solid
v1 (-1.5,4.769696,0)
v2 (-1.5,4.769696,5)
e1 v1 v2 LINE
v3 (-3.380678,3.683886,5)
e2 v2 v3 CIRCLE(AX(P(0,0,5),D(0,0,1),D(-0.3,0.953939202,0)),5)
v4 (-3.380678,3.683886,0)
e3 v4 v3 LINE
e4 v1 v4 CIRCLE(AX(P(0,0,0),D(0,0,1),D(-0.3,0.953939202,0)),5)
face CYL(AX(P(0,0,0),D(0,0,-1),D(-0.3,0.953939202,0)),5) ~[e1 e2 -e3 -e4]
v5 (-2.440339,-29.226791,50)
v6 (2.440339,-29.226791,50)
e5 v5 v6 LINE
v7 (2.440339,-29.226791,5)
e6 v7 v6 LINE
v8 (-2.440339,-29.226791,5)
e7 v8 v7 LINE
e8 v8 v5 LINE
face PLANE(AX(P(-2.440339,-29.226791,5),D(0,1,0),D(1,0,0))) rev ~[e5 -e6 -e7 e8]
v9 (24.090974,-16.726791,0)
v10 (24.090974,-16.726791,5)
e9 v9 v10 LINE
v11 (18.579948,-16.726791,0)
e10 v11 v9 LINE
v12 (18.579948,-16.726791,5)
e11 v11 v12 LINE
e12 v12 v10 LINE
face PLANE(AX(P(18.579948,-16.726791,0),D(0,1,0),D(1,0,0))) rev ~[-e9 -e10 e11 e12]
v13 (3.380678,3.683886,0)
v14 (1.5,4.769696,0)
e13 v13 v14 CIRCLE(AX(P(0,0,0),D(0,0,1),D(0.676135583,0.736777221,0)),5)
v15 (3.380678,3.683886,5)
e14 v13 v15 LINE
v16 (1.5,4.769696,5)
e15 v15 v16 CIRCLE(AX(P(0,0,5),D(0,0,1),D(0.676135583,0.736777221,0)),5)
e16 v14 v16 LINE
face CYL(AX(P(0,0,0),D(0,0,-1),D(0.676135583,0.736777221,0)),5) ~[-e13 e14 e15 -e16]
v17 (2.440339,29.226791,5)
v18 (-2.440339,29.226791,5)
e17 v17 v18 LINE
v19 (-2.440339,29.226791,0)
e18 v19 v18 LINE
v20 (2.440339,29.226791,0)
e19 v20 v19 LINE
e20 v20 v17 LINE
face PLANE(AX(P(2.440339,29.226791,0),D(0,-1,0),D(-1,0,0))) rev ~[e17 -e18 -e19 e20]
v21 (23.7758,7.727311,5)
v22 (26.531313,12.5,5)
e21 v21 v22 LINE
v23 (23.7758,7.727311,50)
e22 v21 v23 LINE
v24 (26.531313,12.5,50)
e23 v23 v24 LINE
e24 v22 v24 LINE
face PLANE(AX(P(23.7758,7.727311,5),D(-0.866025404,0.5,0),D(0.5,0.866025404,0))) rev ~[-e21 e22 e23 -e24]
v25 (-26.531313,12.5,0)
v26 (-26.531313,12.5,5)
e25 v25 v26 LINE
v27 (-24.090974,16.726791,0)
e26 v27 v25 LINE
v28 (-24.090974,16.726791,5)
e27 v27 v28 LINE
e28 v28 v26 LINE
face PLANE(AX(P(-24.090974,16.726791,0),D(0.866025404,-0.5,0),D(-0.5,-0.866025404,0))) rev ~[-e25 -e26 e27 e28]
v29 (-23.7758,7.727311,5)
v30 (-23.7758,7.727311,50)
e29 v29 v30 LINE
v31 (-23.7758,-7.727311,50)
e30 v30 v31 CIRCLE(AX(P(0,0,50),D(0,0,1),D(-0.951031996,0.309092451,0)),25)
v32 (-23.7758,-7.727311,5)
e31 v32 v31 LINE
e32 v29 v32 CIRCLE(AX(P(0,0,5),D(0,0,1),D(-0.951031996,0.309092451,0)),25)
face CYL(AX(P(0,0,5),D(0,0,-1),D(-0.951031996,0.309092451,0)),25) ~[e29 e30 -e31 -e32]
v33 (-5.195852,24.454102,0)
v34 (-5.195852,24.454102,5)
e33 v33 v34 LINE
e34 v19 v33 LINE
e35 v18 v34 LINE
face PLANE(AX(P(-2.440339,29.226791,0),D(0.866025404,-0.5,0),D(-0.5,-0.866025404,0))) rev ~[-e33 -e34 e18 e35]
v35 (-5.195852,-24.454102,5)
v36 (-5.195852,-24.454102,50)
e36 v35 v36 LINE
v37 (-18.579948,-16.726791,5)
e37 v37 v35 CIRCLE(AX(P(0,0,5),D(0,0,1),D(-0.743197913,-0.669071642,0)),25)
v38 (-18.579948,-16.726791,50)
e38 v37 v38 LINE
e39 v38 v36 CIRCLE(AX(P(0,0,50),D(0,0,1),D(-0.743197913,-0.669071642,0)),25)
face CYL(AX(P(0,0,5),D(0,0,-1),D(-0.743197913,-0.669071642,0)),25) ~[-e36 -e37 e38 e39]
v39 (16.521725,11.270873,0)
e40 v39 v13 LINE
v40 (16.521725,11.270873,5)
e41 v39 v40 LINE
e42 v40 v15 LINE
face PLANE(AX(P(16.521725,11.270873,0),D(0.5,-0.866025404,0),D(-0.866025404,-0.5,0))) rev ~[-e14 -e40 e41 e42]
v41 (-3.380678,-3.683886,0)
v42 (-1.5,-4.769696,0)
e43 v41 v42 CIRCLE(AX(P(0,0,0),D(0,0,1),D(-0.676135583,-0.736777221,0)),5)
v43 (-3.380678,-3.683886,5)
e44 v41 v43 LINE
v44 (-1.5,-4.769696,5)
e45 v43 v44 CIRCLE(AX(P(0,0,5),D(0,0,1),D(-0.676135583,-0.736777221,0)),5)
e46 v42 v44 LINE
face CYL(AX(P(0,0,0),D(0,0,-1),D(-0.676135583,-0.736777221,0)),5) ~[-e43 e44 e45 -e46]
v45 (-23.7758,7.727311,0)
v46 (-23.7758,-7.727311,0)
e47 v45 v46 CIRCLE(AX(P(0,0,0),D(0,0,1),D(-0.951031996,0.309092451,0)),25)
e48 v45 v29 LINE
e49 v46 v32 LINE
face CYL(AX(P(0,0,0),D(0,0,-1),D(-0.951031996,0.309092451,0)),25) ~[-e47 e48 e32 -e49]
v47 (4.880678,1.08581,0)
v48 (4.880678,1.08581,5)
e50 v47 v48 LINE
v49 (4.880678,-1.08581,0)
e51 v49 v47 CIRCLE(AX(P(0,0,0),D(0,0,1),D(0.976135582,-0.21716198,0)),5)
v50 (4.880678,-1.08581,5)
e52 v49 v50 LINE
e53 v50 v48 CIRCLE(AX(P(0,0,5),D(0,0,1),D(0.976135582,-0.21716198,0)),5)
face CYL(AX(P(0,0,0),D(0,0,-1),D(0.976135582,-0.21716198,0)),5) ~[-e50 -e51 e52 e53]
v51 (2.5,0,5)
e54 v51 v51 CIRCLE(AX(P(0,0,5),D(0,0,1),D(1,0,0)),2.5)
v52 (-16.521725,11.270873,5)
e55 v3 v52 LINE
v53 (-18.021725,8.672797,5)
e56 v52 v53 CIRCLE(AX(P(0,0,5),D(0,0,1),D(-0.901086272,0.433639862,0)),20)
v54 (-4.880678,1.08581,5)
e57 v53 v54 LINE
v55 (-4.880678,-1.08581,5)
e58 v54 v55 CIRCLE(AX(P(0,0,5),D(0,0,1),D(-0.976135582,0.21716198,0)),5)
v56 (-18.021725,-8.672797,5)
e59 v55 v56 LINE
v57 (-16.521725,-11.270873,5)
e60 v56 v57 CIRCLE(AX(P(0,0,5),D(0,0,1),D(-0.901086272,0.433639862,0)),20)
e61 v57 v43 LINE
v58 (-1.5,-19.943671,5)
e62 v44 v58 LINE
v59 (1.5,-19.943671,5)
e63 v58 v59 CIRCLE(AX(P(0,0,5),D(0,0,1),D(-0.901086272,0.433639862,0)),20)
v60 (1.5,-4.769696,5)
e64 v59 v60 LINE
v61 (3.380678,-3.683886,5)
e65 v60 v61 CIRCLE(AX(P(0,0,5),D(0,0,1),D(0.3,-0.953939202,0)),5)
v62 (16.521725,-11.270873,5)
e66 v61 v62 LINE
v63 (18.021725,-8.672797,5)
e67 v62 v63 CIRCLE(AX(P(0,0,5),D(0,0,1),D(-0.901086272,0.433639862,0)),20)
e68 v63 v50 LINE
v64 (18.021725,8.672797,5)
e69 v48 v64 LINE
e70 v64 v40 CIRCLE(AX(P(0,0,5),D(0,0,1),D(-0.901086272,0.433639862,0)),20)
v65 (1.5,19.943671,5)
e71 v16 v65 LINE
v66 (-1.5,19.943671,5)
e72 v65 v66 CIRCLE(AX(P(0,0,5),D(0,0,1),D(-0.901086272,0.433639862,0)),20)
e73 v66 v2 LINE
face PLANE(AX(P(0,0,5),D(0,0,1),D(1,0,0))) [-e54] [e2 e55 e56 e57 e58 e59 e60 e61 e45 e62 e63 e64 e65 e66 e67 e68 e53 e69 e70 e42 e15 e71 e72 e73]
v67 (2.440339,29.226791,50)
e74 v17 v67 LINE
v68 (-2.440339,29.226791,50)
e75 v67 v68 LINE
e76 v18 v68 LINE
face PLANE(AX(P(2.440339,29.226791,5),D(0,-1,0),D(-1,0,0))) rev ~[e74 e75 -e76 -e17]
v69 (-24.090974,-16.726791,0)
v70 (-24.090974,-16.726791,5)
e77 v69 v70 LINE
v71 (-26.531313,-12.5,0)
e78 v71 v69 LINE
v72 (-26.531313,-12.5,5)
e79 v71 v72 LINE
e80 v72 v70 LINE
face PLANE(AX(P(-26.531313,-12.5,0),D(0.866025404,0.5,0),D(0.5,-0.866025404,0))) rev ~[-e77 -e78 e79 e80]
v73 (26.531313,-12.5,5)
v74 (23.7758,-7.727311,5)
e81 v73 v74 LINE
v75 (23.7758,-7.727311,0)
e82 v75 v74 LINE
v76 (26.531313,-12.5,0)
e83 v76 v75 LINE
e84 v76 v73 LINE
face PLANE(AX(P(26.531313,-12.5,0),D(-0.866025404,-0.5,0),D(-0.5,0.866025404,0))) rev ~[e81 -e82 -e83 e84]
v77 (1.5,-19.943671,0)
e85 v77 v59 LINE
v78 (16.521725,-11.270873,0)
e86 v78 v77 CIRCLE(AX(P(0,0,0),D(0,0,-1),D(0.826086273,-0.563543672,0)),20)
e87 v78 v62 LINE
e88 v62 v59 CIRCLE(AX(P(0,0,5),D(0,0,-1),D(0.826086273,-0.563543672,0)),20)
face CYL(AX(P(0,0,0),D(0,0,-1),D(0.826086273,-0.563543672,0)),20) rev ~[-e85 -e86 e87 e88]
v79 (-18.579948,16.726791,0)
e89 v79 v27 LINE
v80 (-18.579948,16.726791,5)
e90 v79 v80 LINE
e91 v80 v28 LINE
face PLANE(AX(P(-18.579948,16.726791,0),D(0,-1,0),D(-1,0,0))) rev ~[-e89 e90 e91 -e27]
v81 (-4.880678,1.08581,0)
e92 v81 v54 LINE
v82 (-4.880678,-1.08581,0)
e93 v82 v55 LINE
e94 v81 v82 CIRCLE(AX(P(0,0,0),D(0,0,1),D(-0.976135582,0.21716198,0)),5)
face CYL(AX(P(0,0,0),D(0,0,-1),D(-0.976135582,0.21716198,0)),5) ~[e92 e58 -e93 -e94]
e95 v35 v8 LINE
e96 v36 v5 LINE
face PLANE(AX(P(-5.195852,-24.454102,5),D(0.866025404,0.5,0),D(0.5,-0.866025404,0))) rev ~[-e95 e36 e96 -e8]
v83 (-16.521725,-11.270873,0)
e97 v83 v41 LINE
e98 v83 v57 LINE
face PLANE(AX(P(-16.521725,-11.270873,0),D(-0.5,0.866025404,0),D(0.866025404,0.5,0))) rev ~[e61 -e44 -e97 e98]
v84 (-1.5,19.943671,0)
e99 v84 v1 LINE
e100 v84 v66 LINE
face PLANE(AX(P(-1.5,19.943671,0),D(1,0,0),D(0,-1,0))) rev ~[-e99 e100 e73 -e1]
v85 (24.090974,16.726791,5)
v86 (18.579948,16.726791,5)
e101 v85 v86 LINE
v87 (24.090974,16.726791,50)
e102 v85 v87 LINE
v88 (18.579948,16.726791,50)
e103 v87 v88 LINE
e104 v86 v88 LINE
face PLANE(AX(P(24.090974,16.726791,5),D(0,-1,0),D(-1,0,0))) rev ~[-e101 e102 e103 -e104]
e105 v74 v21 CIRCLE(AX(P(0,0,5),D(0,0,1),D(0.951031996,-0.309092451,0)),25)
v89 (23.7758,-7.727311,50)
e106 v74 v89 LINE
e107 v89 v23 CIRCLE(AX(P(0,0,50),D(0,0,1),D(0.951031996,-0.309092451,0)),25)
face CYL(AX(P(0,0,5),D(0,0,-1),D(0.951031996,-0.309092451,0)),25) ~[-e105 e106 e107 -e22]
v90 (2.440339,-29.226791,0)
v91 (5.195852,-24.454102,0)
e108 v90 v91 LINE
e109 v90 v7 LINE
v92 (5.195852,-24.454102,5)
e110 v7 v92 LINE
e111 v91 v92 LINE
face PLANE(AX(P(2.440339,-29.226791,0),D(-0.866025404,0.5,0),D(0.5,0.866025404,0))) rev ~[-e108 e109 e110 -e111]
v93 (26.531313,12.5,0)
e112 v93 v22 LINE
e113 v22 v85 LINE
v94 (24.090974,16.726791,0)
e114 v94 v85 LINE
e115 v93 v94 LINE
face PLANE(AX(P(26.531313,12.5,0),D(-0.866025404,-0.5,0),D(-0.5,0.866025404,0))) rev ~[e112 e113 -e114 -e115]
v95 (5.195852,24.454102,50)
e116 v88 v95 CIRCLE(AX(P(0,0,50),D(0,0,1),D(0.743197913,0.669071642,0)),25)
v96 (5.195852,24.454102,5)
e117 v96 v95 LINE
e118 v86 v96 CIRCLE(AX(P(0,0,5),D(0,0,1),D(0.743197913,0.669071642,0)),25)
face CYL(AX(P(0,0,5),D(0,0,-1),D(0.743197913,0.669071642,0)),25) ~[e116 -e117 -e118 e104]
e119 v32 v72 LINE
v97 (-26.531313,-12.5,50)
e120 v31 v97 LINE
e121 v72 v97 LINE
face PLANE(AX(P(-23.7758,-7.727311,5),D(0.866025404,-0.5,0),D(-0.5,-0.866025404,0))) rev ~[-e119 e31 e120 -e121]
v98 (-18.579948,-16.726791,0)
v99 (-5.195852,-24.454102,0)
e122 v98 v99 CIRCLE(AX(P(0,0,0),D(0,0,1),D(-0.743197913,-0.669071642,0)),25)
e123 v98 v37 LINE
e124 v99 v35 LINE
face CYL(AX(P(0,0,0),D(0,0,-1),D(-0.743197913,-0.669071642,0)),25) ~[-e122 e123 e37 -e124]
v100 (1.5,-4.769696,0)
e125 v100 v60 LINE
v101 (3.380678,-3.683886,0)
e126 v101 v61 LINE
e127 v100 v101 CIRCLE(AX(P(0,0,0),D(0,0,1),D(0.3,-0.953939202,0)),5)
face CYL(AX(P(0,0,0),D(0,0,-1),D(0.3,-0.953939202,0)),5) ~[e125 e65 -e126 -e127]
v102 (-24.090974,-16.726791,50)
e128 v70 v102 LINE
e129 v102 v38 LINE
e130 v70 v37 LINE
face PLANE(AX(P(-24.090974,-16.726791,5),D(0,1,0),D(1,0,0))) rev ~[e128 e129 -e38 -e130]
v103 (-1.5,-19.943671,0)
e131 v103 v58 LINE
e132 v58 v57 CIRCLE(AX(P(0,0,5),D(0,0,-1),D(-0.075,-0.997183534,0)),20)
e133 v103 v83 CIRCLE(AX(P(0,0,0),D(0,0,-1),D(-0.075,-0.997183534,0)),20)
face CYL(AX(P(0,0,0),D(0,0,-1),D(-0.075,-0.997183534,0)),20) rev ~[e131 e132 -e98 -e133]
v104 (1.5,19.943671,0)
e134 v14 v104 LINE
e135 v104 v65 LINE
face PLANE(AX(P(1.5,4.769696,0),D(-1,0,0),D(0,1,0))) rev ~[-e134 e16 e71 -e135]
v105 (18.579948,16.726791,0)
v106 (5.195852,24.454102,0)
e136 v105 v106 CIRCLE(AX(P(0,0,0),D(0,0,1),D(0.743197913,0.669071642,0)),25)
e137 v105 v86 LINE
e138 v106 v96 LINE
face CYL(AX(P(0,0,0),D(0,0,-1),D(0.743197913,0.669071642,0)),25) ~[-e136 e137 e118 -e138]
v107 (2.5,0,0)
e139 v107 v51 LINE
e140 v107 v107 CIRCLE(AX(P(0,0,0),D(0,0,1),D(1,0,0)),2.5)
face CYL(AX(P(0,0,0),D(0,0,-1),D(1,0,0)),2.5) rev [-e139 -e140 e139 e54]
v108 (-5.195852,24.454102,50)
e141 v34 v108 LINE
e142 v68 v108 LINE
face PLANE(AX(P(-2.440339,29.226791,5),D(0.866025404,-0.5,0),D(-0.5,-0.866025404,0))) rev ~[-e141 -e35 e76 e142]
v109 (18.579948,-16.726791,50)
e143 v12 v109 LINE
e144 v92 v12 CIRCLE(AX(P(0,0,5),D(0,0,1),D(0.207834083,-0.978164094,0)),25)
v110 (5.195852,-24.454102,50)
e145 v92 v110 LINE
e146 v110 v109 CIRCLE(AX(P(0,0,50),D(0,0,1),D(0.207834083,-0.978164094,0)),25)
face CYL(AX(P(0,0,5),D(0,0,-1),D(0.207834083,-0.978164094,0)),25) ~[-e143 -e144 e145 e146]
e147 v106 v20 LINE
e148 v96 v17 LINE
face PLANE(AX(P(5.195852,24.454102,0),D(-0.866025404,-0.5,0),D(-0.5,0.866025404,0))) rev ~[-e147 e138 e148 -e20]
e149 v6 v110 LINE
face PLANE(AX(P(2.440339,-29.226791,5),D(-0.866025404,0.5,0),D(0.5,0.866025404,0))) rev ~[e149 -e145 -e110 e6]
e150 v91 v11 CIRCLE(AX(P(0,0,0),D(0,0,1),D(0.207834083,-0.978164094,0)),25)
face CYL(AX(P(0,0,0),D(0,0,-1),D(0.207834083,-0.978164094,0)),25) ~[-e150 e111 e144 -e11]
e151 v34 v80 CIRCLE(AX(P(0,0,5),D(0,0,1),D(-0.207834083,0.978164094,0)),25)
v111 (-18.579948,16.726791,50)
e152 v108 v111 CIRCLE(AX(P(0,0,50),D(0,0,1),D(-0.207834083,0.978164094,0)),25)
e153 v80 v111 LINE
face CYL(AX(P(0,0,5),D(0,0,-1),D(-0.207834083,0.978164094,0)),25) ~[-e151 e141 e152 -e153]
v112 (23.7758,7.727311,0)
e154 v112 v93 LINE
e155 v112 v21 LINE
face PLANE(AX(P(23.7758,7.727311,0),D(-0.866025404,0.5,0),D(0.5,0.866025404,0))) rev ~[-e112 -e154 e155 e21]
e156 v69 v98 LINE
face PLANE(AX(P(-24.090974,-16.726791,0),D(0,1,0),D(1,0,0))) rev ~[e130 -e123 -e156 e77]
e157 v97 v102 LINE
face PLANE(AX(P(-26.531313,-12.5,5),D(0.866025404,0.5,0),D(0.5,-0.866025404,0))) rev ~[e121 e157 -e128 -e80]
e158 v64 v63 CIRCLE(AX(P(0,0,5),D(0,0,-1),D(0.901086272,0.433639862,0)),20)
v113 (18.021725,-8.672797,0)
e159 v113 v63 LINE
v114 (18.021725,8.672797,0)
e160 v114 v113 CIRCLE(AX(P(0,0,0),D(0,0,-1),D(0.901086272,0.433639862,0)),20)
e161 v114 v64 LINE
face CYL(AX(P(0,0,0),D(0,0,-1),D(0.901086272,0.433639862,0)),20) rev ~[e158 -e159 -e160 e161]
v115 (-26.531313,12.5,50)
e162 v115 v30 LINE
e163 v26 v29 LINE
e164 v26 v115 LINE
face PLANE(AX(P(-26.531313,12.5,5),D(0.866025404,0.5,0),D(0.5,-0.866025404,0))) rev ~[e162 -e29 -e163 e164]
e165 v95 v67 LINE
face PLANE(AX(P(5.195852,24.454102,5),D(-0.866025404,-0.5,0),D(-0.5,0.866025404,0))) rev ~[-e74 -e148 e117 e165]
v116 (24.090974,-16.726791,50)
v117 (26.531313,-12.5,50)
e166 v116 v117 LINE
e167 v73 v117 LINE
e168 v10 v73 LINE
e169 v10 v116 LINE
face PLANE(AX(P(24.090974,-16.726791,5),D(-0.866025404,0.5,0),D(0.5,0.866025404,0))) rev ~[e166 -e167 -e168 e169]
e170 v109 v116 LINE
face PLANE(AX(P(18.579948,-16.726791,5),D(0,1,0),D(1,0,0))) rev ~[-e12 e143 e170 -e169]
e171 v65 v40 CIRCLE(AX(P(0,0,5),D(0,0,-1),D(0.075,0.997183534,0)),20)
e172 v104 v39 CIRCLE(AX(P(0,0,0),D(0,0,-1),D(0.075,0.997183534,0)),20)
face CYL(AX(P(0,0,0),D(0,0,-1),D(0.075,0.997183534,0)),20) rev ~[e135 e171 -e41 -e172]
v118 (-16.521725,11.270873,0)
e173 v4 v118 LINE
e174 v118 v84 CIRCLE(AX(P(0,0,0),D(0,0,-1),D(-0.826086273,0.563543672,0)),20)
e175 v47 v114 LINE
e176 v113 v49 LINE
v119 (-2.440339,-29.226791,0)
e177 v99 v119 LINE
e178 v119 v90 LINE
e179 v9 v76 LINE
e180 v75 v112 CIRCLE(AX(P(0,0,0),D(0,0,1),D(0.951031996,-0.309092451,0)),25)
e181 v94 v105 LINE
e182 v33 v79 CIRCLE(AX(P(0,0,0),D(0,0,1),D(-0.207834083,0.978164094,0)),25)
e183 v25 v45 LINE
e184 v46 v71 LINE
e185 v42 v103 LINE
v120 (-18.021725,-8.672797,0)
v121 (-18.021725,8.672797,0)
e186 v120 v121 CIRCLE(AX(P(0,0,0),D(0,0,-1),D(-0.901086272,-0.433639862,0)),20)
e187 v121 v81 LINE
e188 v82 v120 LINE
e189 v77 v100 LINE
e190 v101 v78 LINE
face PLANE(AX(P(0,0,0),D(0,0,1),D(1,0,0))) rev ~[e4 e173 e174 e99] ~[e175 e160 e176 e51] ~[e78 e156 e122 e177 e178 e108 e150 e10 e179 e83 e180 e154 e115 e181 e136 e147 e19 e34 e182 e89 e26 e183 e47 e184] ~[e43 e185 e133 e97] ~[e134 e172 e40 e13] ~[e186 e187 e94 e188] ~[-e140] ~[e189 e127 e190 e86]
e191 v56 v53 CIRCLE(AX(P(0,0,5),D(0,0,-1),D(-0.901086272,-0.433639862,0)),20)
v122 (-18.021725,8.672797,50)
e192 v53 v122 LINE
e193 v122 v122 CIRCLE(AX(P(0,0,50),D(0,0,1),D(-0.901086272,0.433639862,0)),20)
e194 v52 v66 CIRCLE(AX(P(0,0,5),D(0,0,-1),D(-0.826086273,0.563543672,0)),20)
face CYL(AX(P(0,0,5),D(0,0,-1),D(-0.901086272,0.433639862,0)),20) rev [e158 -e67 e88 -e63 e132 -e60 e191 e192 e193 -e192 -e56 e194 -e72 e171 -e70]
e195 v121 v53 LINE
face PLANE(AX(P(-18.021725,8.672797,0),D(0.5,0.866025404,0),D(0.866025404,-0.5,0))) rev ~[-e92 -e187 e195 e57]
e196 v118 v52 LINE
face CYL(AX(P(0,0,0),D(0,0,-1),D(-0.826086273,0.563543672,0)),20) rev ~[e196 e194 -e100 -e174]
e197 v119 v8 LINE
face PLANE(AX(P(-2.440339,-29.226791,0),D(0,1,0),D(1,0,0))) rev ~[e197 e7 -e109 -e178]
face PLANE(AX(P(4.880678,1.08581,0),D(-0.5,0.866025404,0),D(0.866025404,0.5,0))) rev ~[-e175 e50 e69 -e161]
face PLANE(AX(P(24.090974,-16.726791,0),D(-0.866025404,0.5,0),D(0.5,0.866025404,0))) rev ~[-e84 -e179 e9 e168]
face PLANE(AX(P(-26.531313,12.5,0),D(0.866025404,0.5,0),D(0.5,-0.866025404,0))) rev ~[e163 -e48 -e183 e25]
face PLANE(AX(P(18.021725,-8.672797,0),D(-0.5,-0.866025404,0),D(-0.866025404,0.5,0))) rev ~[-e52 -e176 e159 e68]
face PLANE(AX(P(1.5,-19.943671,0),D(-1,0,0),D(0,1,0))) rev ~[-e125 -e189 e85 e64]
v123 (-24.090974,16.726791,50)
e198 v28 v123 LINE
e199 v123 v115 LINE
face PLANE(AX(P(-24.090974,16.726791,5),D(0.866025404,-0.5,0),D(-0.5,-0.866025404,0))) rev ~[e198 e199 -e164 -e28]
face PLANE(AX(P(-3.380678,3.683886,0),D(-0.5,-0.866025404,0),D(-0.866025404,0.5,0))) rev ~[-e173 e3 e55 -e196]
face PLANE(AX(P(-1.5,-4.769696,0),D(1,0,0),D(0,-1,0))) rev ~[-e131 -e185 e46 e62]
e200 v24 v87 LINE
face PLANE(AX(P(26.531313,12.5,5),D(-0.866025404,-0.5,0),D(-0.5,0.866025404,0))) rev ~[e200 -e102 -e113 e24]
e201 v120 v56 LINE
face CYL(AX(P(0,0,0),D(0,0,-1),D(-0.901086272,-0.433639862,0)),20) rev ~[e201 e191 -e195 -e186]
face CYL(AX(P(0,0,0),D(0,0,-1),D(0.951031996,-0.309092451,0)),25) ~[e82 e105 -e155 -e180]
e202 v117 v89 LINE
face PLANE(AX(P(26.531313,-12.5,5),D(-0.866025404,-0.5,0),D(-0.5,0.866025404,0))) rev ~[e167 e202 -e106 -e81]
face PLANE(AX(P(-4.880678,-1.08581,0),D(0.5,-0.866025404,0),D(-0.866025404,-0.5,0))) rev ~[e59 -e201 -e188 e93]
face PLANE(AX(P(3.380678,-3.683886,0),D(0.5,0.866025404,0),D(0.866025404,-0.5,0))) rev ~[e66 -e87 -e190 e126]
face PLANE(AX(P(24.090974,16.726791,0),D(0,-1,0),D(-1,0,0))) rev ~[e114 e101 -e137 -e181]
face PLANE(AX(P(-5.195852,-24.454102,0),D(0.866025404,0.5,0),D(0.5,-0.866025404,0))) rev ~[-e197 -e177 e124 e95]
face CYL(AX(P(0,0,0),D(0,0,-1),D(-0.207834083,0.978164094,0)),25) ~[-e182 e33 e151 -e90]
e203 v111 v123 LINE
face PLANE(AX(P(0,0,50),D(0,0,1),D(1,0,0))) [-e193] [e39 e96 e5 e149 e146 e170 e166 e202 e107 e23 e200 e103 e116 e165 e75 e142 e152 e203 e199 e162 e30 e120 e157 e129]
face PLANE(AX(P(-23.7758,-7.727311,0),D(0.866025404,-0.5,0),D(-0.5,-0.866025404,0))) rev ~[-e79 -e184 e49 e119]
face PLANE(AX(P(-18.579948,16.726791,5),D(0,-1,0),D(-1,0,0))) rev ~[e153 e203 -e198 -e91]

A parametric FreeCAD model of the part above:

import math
import FreeCAD as App
import Part
import Sketcher
Q = App.Units.Quantity

doc = App.newDocument("Part")
body = doc.addObject("PartDesign::Body", "Body")

sketch1 = body.newObject("Sketcher::SketchObject", "Sketch")
sketch1.AttachmentSupport = (doc.getObject("XY_Plane"), [""])
sketch1.MapMode = "FlatFace"
sketch1.addGeometry(Part.ArcOfCircle(Part.Circle(App.Vector(0, 0, 0), App.Vector(0, 0, 1), 25), math.radians(102), math.radians(138)), False)
sketch1.addGeometry(Part.LineSegment(App.Vector(-18.6, 16.7, 0), App.Vector(-24.1, 16.7, 0)), False)
sketch1.addGeometry(Part.LineSegment(App.Vector(-24.1, 16.7, 0), App.Vector(-26.5, 12.5, 0)), False)
sketch1.addGeometry(Part.LineSegment(App.Vector(-26.5, 12.5, 0), App.Vector(-23.8, 7.7, 0)), False)
sketch1.addGeometry(Part.ArcOfCircle(Part.Circle(App.Vector(0, 0, 0), App.Vector(0, 0, 1), 25), math.radians(162), math.radians(198)), False)
sketch1.addGeometry(Part.LineSegment(App.Vector(-23.8, -7.7, 0), App.Vector(-26.5, -12.5, 0)), False)
sketch1.addGeometry(Part.LineSegment(App.Vector(-26.5, -12.5, 0), App.Vector(-24.1, -16.7, 0)), False)
sketch1.addGeometry(Part.LineSegment(App.Vector(-24.1, -16.7, 0), App.Vector(-18.6, -16.7, 0)), False)
sketch1.addGeometry(Part.ArcOfCircle(Part.Circle(App.Vector(0, 0, 0), App.Vector(0, 0, 1), 25), math.radians(-138), math.radians(-102)), False)
sketch1.addGeometry(Part.LineSegment(App.Vector(-5.2, -24.5, 0), App.Vector(-2.4, -29.2, 0)), False)
sketch1.addGeometry(Part.LineSegment(App.Vector(-2.4, -29.2, 0), App.Vector(2.4, -29.2, 0)), False)
sketch1.addGeometry(Part.LineSegment(App.Vector(2.4, -29.2, 0), App.Vector(5.2, -24.5, 0)), False)
sketch1.addGeometry(Part.ArcOfCircle(Part.Circle(App.Vector(0, 0, 0), App.Vector(0, 0, 1), 25), math.radians(-78), math.radians(-42)), False)
sketch1.addGeometry(Part.LineSegment(App.Vector(18.6, -16.7, 0), App.Vector(24.1, -16.7, 0)), False)
sketch1.addGeometry(Part.LineSegment(App.Vector(24.1, -16.7, 0), App.Vector(26.5, -12.5, 0)), False)
sketch1.addGeometry(Part.LineSegment(App.Vector(26.5, -12.5, 0), App.Vector(23.8, -7.7, 0)), False)
sketch1.addGeometry(Part.ArcOfCircle(Part.Circle(App.Vector(0, 0, 0), App.Vector(0, 0, 1), 25), math.radians(-18), math.radians(18)), False)
sketch1.addGeometry(Part.LineSegment(App.Vector(23.8, 7.7, 0), App.Vector(26.5, 12.5, 0)), False)
sketch1.addGeometry(Part.LineSegment(App.Vector(26.5, 12.5, 0), App.Vector(24.1, 16.7, 0)), False)
sketch1.addGeometry(Part.LineSegment(App.Vector(24.1, 16.7, 0), App.Vector(18.6, 16.7, 0)), False)
sketch1.addGeometry(Part.ArcOfCircle(Part.Circle(App.Vector(0, 0, 0), App.Vector(0, 0, 1), 25), math.radians(42), math.radians(78)), False)
sketch1.addGeometry(Part.LineSegment(App.Vector(5.2, 24.5, 0), App.Vector(2.4, 29.2, 0)), False)
sketch1.addGeometry(Part.LineSegment(App.Vector(2.4, 29.2, 0), App.Vector(-2.4, 29.2, 0)), False)
sketch1.addGeometry(Part.LineSegment(App.Vector(-2.4, 29.2, 0), App.Vector(-5.2, 24.5, 0)), False)
sketch1.addGeometry(Part.ArcOfCircle(Part.Circle(App.Vector(0, 0, 0), App.Vector(0, 0, 1), 20), math.radians(-146), math.radians(-94)), False)
sketch1.addGeometry(Part.LineSegment(App.Vector(-16.5, -11.3, 0), App.Vector(-3.4, -3.7, 0)), False)
sketch1.addGeometry(Part.ArcOfCircle(Part.Circle(App.Vector(0, 0, 0), App.Vector(0, 0, 1), 5), math.radians(-133), math.radians(-107)), False)
sketch1.addGeometry(Part.LineSegment(App.Vector(-1.5, -4.8, 0), App.Vector(-1.5, -19.9, 0)), False)
sketch1.addGeometry(Part.ArcOfCircle(Part.Circle(App.Vector(0, 0, 0), App.Vector(0, 0, 1), 20), math.radians(-86), math.radians(-34)), False)
sketch1.addGeometry(Part.LineSegment(App.Vector(1.5, -19.9, 0), App.Vector(1.5, -4.8, 0)), False)
sketch1.addGeometry(Part.ArcOfCircle(Part.Circle(App.Vector(0, 0, 0), App.Vector(0, 0, 1), 5), math.radians(-73), math.radians(-47)), False)
sketch1.addGeometry(Part.LineSegment(App.Vector(3.4, -3.7, 0), App.Vector(16.5, -11.3, 0)), False)
sketch1.addGeometry(Part.ArcOfCircle(Part.Circle(App.Vector(0, 0, 0), App.Vector(0, 0, 1), 20), math.radians(154), math.radians(206)), False)
sketch1.addGeometry(Part.LineSegment(App.Vector(-18, 8.7, 0), App.Vector(-4.9, 1.1, 0)), False)
sketch1.addGeometry(Part.ArcOfCircle(Part.Circle(App.Vector(0, 0, 0), App.Vector(0, 0, 1), 5), math.radians(167), math.radians(193)), False)
sketch1.addGeometry(Part.LineSegment(App.Vector(-4.9, -1.1, 0), App.Vector(-18, -8.7, 0)), False)
sketch1.addGeometry(Part.Circle(App.Vector(0, 0, 0), App.Vector(0, 0, 1), 2.5), False)
sketch1.addGeometry(Part.ArcOfCircle(Part.Circle(App.Vector(0, 0, 0), App.Vector(0, 0, 1), 20), math.radians(94), math.radians(146)), False)
sketch1.addGeometry(Part.LineSegment(App.Vector(-1.5, 19.9, 0), App.Vector(-1.5, 4.8, 0)), False)
sketch1.addGeometry(Part.ArcOfCircle(Part.Circle(App.Vector(0, 0, 0), App.Vector(0, 0, 1), 5), math.radians(107), math.radians(133)), False)
sketch1.addGeometry(Part.LineSegment(App.Vector(-3.4, 3.7, 0), App.Vector(-16.5, 11.3, 0)), False)
sketch1.addGeometry(Part.ArcOfCircle(Part.Circle(App.Vector(0, 0, 0), App.Vector(0, 0, 1), 20), math.radians(-26), math.radians(26)), False)
sketch1.addGeometry(Part.LineSegment(App.Vector(18, -8.7, 0), App.Vector(4.9, -1.1, 0)), False)
sketch1.addGeometry(Part.ArcOfCircle(Part.Circle(App.Vector(0, 0, 0), App.Vector(0, 0, 1), 5), math.radians(-13), math.radians(13)), False)
sketch1.addGeometry(Part.LineSegment(App.Vector(4.9, 1.1, 0), App.Vector(18, 8.7, 0)), False)
sketch1.addGeometry(Part.ArcOfCircle(Part.Circle(App.Vector(0, 0, 0), App.Vector(0, 0, 1), 20), math.radians(34), math.radians(86)), False)
sketch1.addGeometry(Part.LineSegment(App.Vector(16.5, 11.3, 0), App.Vector(3.4, 3.7, 0)), False)
sketch1.addGeometry(Part.ArcOfCircle(Part.Circle(App.Vector(0, 0, 0), App.Vector(0, 0, 1), 5), math.radians(47), math.radians(73)), False)
sketch1.addGeometry(Part.LineSegment(App.Vector(1.5, 4.8, 0), App.Vector(1.5, 19.9, 0)), False)
sketch1.addConstraint(Sketcher.Constraint("Coincident", 0, 2, 1, 1))
sketch1.addConstraint(Sketcher.Constraint("Coincident", 1, 2, 2, 1))
sketch1.addConstraint(Sketcher.Constraint("Coincident", 2, 2, 3, 1))
sketch1.addConstraint(Sketcher.Constraint("Coincident", 3, 2, 4, 1))
sketch1.addConstraint(Sketcher.Constraint("Coincident", 4, 2, 5, 1))
sketch1.addConstraint(Sketcher.Constraint("Coincident", 5, 2, 6, 1))
sketch1.addConstraint(Sketcher.Constraint("Coincident", 6, 2, 7, 1))
sketch1.addConstraint(Sketcher.Constraint("Coincident", 7, 2, 8, 1))
sketch1.addConstraint(Sketcher.Constraint("Coincident", 8, 2, 9, 1))
sketch1.addConstraint(Sketcher.Constraint("Coincident", 9, 2, 10, 1))
sketch1.addConstraint(Sketcher.Constraint("Coincident", 10, 2, 11, 1))
sketch1.addConstraint(Sketcher.Constraint("Coincident", 11, 2, 12, 1))
sketch1.addConstraint(Sketcher.Constraint("Coincident", 12, 2, 13, 1))
sketch1.addConstraint(Sketcher.Constraint("Coincident", 13, 2, 14, 1))
sketch1.addConstraint(Sketcher.Constraint("Coincident", 14, 2, 15, 1))
sketch1.addConstraint(Sketcher.Constraint("Coincident", 15, 2, 16, 1))
sketch1.addConstraint(Sketcher.Constraint("Coincident", 16, 2, 17, 1))
sketch1.addConstraint(Sketcher.Constraint("Coincident", 17, 2, 18, 1))
sketch1.addConstraint(Sketcher.Constraint("Coincident", 18, 2, 19, 1))
sketch1.addConstraint(Sketcher.Constraint("Coincident", 19, 2, 20, 1))
sketch1.addConstraint(Sketcher.Constraint("Coincident", 20, 2, 21, 1))
sketch1.addConstraint(Sketcher.Constraint("Coincident", 21, 2, 22, 1))
sketch1.addConstraint(Sketcher.Constraint("Coincident", 22, 2, 23, 1))
sketch1.addConstraint(Sketcher.Constraint("Coincident", 23, 2, 0, 1))
sketch1.addConstraint(Sketcher.Constraint("Coincident", 24, 1, 25, 1))
sketch1.addConstraint(Sketcher.Constraint("Coincident", 25, 2, 26, 1))
sketch1.addConstraint(Sketcher.Constraint("Coincident", 26, 2, 27, 1))
sketch1.addConstraint(Sketcher.Constraint("Coincident", 27, 2, 24, 2))
sketch1.addConstraint(Sketcher.Constraint("Coincident", 28, 1, 29, 1))
sketch1.addConstraint(Sketcher.Constraint("Coincident", 29, 2, 30, 1))
sketch1.addConstraint(Sketcher.Constraint("Coincident", 30, 2, 31, 1))
sketch1.addConstraint(Sketcher.Constraint("Coincident", 31, 2, 28, 2))
sketch1.addConstraint(Sketcher.Constraint("Coincident", 32, 1, 33, 1))
sketch1.addConstraint(Sketcher.Constraint("Coincident", 33, 2, 34, 1))
sketch1.addConstraint(Sketcher.Constraint("Coincident", 34, 2, 35, 1))
sketch1.addConstraint(Sketcher.Constraint("Coincident", 35, 2, 32, 2))
sketch1.addConstraint(Sketcher.Constraint("Coincident", 37, 1, 38, 1))
sketch1.addConstraint(Sketcher.Constraint("Coincident", 38, 2, 39, 1))
sketch1.addConstraint(Sketcher.Constraint("Coincident", 39, 2, 40, 1))
sketch1.addConstraint(Sketcher.Constraint("Coincident", 40, 2, 37, 2))
sketch1.addConstraint(Sketcher.Constraint("Coincident", 41, 1, 42, 1))
sketch1.addConstraint(Sketcher.Constraint("Coincident", 42, 2, 43, 1))
sketch1.addConstraint(Sketcher.Constraint("Coincident", 43, 2, 44, 1))
sketch1.addConstraint(Sketcher.Constraint("Coincident", 44, 2, 41, 2))
sketch1.addConstraint(Sketcher.Constraint("Coincident", 45, 1, 46, 1))
sketch1.addConstraint(Sketcher.Constraint("Coincident", 46, 2, 47, 1))
sketch1.addConstraint(Sketcher.Constraint("Coincident", 47, 2, 48, 1))
sketch1.addConstraint(Sketcher.Constraint("Coincident", 48, 2, 45, 2))
sketch1.addConstraint(Sketcher.Constraint("Horizontal", 1))
sketch1.addConstraint(Sketcher.Constraint("Horizontal", 7))
sketch1.addConstraint(Sketcher.Constraint("Horizontal", 10))
sketch1.addConstraint(Sketcher.Constraint("Horizontal", 13))
sketch1.addConstraint(Sketcher.Constraint("Horizontal", 19))
sketch1.addConstraint(Sketcher.Constraint("Horizontal", 22))
sketch1.addConstraint(Sketcher.Constraint("Vertical", 27))
sketch1.addConstraint(Sketcher.Constraint("Vertical", 29))
sketch1.addConstraint(Sketcher.Constraint("Vertical", 38))
sketch1.addConstraint(Sketcher.Constraint("Vertical", 48))
sketch1.addConstraint(Sketcher.Constraint("Coincident", 0, 3, -1, 1))
sketch1.addConstraint(Sketcher.Constraint("Coincident", 4, 3, -1, 1))
sketch1.addConstraint(Sketcher.Constraint("Coincident", 8, 3, -1, 1))
sketch1.addConstraint(Sketcher.Constraint("Coincident", 12, 3, -1, 1))
sketch1.addConstraint(Sketcher.Constraint("Coincident", 16, 3, -1, 1))
sketch1.addConstraint(Sketcher.Constraint("Coincident", 20, 3, -1, 1))
sketch1.addConstraint(Sketcher.Constraint("Coincident", 24, 3, -1, 1))
sketch1.addConstraint(Sketcher.Constraint("Coincident", 26, 3, -1, 1))
sketch1.addConstraint(Sketcher.Constraint("Coincident", 28, 3, -1, 1))
sketch1.addConstraint(Sketcher.Constraint("Coincident", 30, 3, -1, 1))
sketch1.addConstraint(Sketcher.Constraint("Coincident", 32, 3, -1, 1))
sketch1.addConstraint(Sketcher.Constraint("Coincident", 34, 3, -1, 1))
sketch1.addConstraint(Sketcher.Constraint("Coincident", 36, 3, -1, 1))
sketch1.addConstraint(Sketcher.Constraint("Coincident", 37, 3, -1, 1))
sketch1.addConstraint(Sketcher.Constraint("Coincident", 39, 3, -1, 1))
sketch1.addConstraint(Sketcher.Constraint("Coincident", 41, 3, -1, 1))
sketch1.addConstraint(Sketcher.Constraint("Coincident", 43, 3, -1, 1))
sketch1.addConstraint(Sketcher.Constraint("Coincident", 45, 3, -1, 1))
sketch1.addConstraint(Sketcher.Constraint("Coincident", 47, 3, -1, 1))
sketch1.addConstraint(Sketcher.Constraint("Equal", 0, 4))
sketch1.addConstraint(Sketcher.Constraint("Equal", 4, 8))
sketch1.addConstraint(Sketcher.Constraint("Equal", 8, 12))
sketch1.addConstraint(Sketcher.Constraint("Equal", 12, 16))
sketch1.addConstraint(Sketcher.Constraint("Equal", 16, 20))
sketch1.addConstraint(Sketcher.Constraint("Equal", 24, 28))
sketch1.addConstraint(Sketcher.Constraint("Equal", 26, 30))
sketch1.addConstraint(Sketcher.Constraint("Equal", 28, 32))
sketch1.addConstraint(Sketcher.Constraint("Equal", 30, 34))
sketch1.addConstraint(Sketcher.Constraint("Equal", 32, 37))
sketch1.addConstraint(Sketcher.Constraint("Equal", 34, 39))
sketch1.addConstraint(Sketcher.Constraint("Equal", 37, 41))
sketch1.addConstraint(Sketcher.Constraint("Equal", 39, 43))
sketch1.addConstraint(Sketcher.Constraint("Equal", 41, 45))
sketch1.addConstraint(Sketcher.Constraint("Equal", 43, 47))
sketch1.addConstraint(Sketcher.Constraint("Symmetric", 1, 2, 13, 2, -1, 1))
sketch1.addConstraint(Sketcher.Constraint("Symmetric", 2, 2, 14, 2, -1, 1))
sketch1.addConstraint(Sketcher.Constraint("Symmetric", 5, 2, 17, 2, -1, 1))
sketch1.addConstraint(Sketcher.Constraint("Symmetric", 6, 2, 18, 2, -1, 1))
sketch1.addConstraint(Sketcher.Constraint("Symmetric", 9, 2, 21, 2, -1, 1))
sketch1.addConstraint(Sketcher.Constraint("Symmetric", 6, 2, 13, 2, -2))
sketch1.addConstraint(Sketcher.Constraint("Symmetric", 5, 2, 14, 2, -2))
sketch1.addConstraint(Sketcher.Constraint("Parallel", 2, 5))
sketch1.addConstraint(Sketcher.Constraint("Parallel", 3, 6))
sketch1.addConstraint(Sketcher.Constraint("Parallel", 6, 9))
sketch1.addConstraint(Sketcher.Constraint("Parallel", 5, 11))
sketch1.addConstraint(Sketcher.Constraint("Parallel", 9, 15))
sketch1.addConstraint(Sketcher.Constraint("Parallel", 14, 17))
sketch1.addConstraint(Sketcher.Constraint("Parallel", 18, 21))
sketch1.addConstraint(Sketcher.Constraint("Parallel", 17, 23))
sketch1.addConstraint(Sketcher.Constraint("Perpendicular", 21, 25))
sketch1.addConstraint(Sketcher.Constraint("Perpendicular", 23, 31))
sketch1.addConstraint(Sketcher.Constraint("Parallel", 31, 33))
sketch1.addConstraint(Sketcher.Constraint("Parallel", 25, 35))
sketch1.addConstraint(Sketcher.Constraint("Parallel", 33, 40))
sketch1.addConstraint(Sketcher.Constraint("Parallel", 40, 42))
sketch1.addConstraint(Sketcher.Constraint("Parallel", 35, 44))
sketch1.addConstraint(Sketcher.Constraint("Parallel", 44, 46))
sketch1.addConstraint(Sketcher.Constraint("Horizontal", 8, 2, 11, 2))
sketch1.addConstraint(Sketcher.Constraint("Horizontal", 20, 2, 23, 2))
sketch1.addConstraint(Sketcher.Constraint("Horizontal", 27, 2, 28, 1))
sketch1.addConstraint(Sketcher.Constraint("Horizontal", 25, 2, 30, 2))
sketch1.addConstraint(Sketcher.Constraint("Horizontal", 35, 2, 41, 1))
sketch1.addConstraint(Sketcher.Constraint("Horizontal", 33, 2, 43, 2))
sketch1.addConstraint(Sketcher.Constraint("Horizontal", 40, 2, 45, 1))
sketch1.addConstraint(Sketcher.Constraint("Horizontal", 38, 2, 47, 2))
sketch1.addConstraint(Sketcher.Constraint("Vertical", 33, 2, 34, 2))
sketch1.addConstraint(Sketcher.Constraint("Vertical", 27, 2, 37, 1))
sketch1.addConstraint(Sketcher.Constraint("Vertical", 25, 2, 39, 2))
sketch1.addConstraint(Sketcher.Constraint("Equal", 5, 9))
sketch1.addConstraint(Sketcher.Constraint("Equal", 31, 33))
sketch1.addConstraint(Sketcher.Constraint("Diameter", 36, Q("5 mm")))
sketch1.addConstraint(Sketcher.Constraint("Radius", 0, Q("25 mm")))
sketch1.addConstraint(Sketcher.Constraint("Radius", 24, Q("20 mm")))
sketch1.addConstraint(Sketcher.Constraint("Radius", 26, Q("5 mm")))
sketch1.addConstraint(Sketcher.Constraint("Angle", 2, Q("-120 deg")))
sketch1.addConstraint(Sketcher.Constraint("DistanceY", -1, 1, 2, 2, Q("12.5 mm")))
sketch1.addConstraint(Sketcher.Constraint("DistanceX", 26, 2, -1, 1, Q("1.5 mm")))
sketch1.addConstraint(Sketcher.Constraint("DistanceX", 3, 2, -1, 1, Q("23.7758 mm")))
sketch1.addConstraint(Sketcher.Constraint("DistanceX", 1, 2, 1, 1, Q("5.511026 mm")))
sketch1.addConstraint(Sketcher.Constraint("DistanceX", 10, 1, 10, 2, Q("4.880678 mm")))
sketch1.addConstraint(Sketcher.Constraint("DistanceY", -1, 1, 33, 2, Q("1.08581 mm")))
pad1 = body.newObject("PartDesign::Pad", "Pad")
pad1.Profile = sketch1
pad1.Length = 5

sketch2 = body.newObject("Sketcher::SketchObject", "Sketch001")
sketch2.AttachmentSupport = (doc.getObject("XY_Plane"), [""])
sketch2.MapMode = "FlatFace"
sketch2.AttachmentOffset = App.Placement(App.Vector(0, 0, 5), App.Rotation())
sketch2.addGeometry(Part.LineSegment(App.Vector(-2.4, 29.2, 0), App.Vector(-5.2, 24.5, 0)), False)
sketch2.addGeometry(Part.ArcOfCircle(Part.Circle(App.Vector(0, 0, 0), App.Vector(0, 0, 1), 25), math.radians(102), math.radians(138)), False)
sketch2.addGeometry(Part.LineSegment(App.Vector(-18.6, 16.7, 0), App.Vector(-24.1, 16.7, 0)), False)
sketch2.addGeometry(Part.LineSegment(App.Vector(-24.1, 16.7, 0), App.Vector(-26.5, 12.5, 0)), False)
sketch2.addGeometry(Part.LineSegment(App.Vector(-26.5, 12.5, 0), App.Vector(-23.8, 7.7, 0)), False)
sketch2.addGeometry(Part.ArcOfCircle(Part.Circle(App.Vector(0, 0, 0), App.Vector(0, 0, 1), 25), math.radians(162), math.radians(198)), False)
sketch2.addGeometry(Part.LineSegment(App.Vector(-23.8, -7.7, 0), App.Vector(-26.5, -12.5, 0)), False)
sketch2.addGeometry(Part.LineSegment(App.Vector(-26.5, -12.5, 0), App.Vector(-24.1, -16.7, 0)), False)
sketch2.addGeometry(Part.LineSegment(App.Vector(-24.1, -16.7, 0), App.Vector(-18.6, -16.7, 0)), False)
sketch2.addGeometry(Part.ArcOfCircle(Part.Circle(App.Vector(0, 0, 0), App.Vector(0, 0, 1), 25), math.radians(-138), math.radians(-102)), False)
sketch2.addGeometry(Part.LineSegment(App.Vector(-5.2, -24.5, 0), App.Vector(-2.4, -29.2, 0)), False)
sketch2.addGeometry(Part.LineSegment(App.Vector(-2.4, -29.2, 0), App.Vector(2.4, -29.2, 0)), False)
sketch2.addGeometry(Part.LineSegment(App.Vector(2.4, -29.2, 0), App.Vector(5.2, -24.5, 0)), False)
sketch2.addGeometry(Part.ArcOfCircle(Part.Circle(App.Vector(0, 0, 0), App.Vector(0, 0, 1), 25), math.radians(-78), math.radians(-42)), False)
sketch2.addGeometry(Part.LineSegment(App.Vector(18.6, -16.7, 0), App.Vector(24.1, -16.7, 0)), False)
sketch2.addGeometry(Part.LineSegment(App.Vector(24.1, -16.7, 0), App.Vector(26.5, -12.5, 0)), False)
sketch2.addGeometry(Part.LineSegment(App.Vector(26.5, -12.5, 0), App.Vector(23.8, -7.7, 0)), False)
sketch2.addGeometry(Part.ArcOfCircle(Part.Circle(App.Vector(0, 0, 0), App.Vector(0, 0, 1), 25), math.radians(-18), math.radians(18)), False)
sketch2.addGeometry(Part.LineSegment(App.Vector(23.8, 7.7, 0), App.Vector(26.5, 12.5, 0)), False)
sketch2.addGeometry(Part.LineSegment(App.Vector(26.5, 12.5, 0), App.Vector(24.1, 16.7, 0)), False)
sketch2.addGeometry(Part.LineSegment(App.Vector(24.1, 16.7, 0), App.Vector(18.6, 16.7, 0)), False)
sketch2.addGeometry(Part.ArcOfCircle(Part.Circle(App.Vector(0, 0, 0), App.Vector(0, 0, 1), 25), math.radians(42), math.radians(78)), False)
sketch2.addGeometry(Part.LineSegment(App.Vector(5.2, 24.5, 0), App.Vector(2.4, 29.2, 0)), False)
sketch2.addGeometry(Part.LineSegment(App.Vector(2.4, 29.2, 0), App.Vector(-2.4, 29.2, 0)), False)
sketch2.addGeometry(Part.Circle(App.Vector(0, 0, 0), App.Vector(0, 0, 1), 20), False)
sketch2.addConstraint(Sketcher.Constraint("Coincident", 0, 2, 1, 1))
sketch2.addConstraint(Sketcher.Constraint("Coincident", 1, 2, 2, 1))
sketch2.addConstraint(Sketcher.Constraint("Coincident", 2, 2, 3, 1))
sketch2.addConstraint(Sketcher.Constraint("Coincident", 3, 2, 4, 1))
sketch2.addConstraint(Sketcher.Constraint("Coincident", 4, 2, 5, 1))
sketch2.addConstraint(Sketcher.Constraint("Coincident", 5, 2, 6, 1))
sketch2.addConstraint(Sketcher.Constraint("Coincident", 6, 2, 7, 1))
sketch2.addConstraint(Sketcher.Constraint("Coincident", 7, 2, 8, 1))
sketch2.addConstraint(Sketcher.Constraint("Coincident", 8, 2, 9, 1))
sketch2.addConstraint(Sketcher.Constraint("Coincident", 9, 2, 10, 1))
sketch2.addConstraint(Sketcher.Constraint("Coincident", 10, 2, 11, 1))
sketch2.addConstraint(Sketcher.Constraint("Coincident", 11, 2, 12, 1))
sketch2.addConstraint(Sketcher.Constraint("Coincident", 12, 2, 13, 1))
sketch2.addConstraint(Sketcher.Constraint("Coincident", 13, 2, 14, 1))
sketch2.addConstraint(Sketcher.Constraint("Coincident", 14, 2, 15, 1))
sketch2.addConstraint(Sketcher.Constraint("Coincident", 15, 2, 16, 1))
sketch2.addConstraint(Sketcher.Constraint("Coincident", 16, 2, 17, 1))
sketch2.addConstraint(Sketcher.Constraint("Coincident", 17, 2, 18, 1))
sketch2.addConstraint(Sketcher.Constraint("Coincident", 18, 2, 19, 1))
sketch2.addConstraint(Sketcher.Constraint("Coincident", 19, 2, 20, 1))
sketch2.addConstraint(Sketcher.Constraint("Coincident", 20, 2, 21, 1))
sketch2.addConstraint(Sketcher.Constraint("Coincident", 21, 2, 22, 1))
sketch2.addConstraint(Sketcher.Constraint("Coincident", 22, 2, 23, 1))
sketch2.addConstraint(Sketcher.Constraint("Coincident", 23, 2, 0, 1))
sketch2.addConstraint(Sketcher.Constraint("Horizontal", 2))
sketch2.addConstraint(Sketcher.Constraint("Horizontal", 8))
sketch2.addConstraint(Sketcher.Constraint("Horizontal", 11))
sketch2.addConstraint(Sketcher.Constraint("Horizontal", 14))
sketch2.addConstraint(Sketcher.Constraint("Horizontal", 20))
sketch2.addConstraint(Sketcher.Constraint("Horizontal", 23))
sketch2.addConstraint(Sketcher.Constraint("Coincident", 1, 3, -1, 1))
sketch2.addConstraint(Sketcher.Constraint("Coincident", 5, 3, -1, 1))
sketch2.addConstraint(Sketcher.Constraint("Coincident", 9, 3, -1, 1))
sketch2.addConstraint(Sketcher.Constraint("Coincident", 13, 3, -1, 1))
sketch2.addConstraint(Sketcher.Constraint("Coincident", 17, 3, -1, 1))
sketch2.addConstraint(Sketcher.Constraint("Coincident", 21, 3, -1, 1))
sketch2.addConstraint(Sketcher.Constraint("Coincident", 24, 3, -1, 1))
sketch2.addConstraint(Sketcher.Constraint("Equal", 1, 5))
sketch2.addConstraint(Sketcher.Constraint("Equal", 5, 9))
sketch2.addConstraint(Sketcher.Constraint("Equal", 9, 13))
sketch2.addConstraint(Sketcher.Constraint("Equal", 13, 17))
sketch2.addConstraint(Sketcher.Constraint("Equal", 17, 21))
sketch2.addConstraint(Sketcher.Constraint("Symmetric", 2, 2, 14, 2, -1, 1))
sketch2.addConstraint(Sketcher.Constraint("Symmetric", 3, 2, 15, 2, -1, 1))
sketch2.addConstraint(Sketcher.Constraint("Symmetric", 6, 2, 18, 2, -1, 1))
sketch2.addConstraint(Sketcher.Constraint("Symmetric", 7, 2, 19, 2, -1, 1))
sketch2.addConstraint(Sketcher.Constraint("Symmetric", 10, 2, 22, 2, -1, 1))
sketch2.addConstraint(Sketcher.Constraint("Symmetric", 7, 2, 14, 2, -2))
sketch2.addConstraint(Sketcher.Constraint("Symmetric", 6, 2, 15, 2, -2))
sketch2.addConstraint(Sketcher.Constraint("Parallel", 0, 3))
sketch2.addConstraint(Sketcher.Constraint("Parallel", 3, 6))
sketch2.addConstraint(Sketcher.Constraint("Parallel", 4, 7))
sketch2.addConstraint(Sketcher.Constraint("Parallel", 7, 10))
sketch2.addConstraint(Sketcher.Constraint("Parallel", 6, 12))
sketch2.addConstraint(Sketcher.Constraint("Parallel", 10, 16))
sketch2.addConstraint(Sketcher.Constraint("Parallel", 15, 18))
sketch2.addConstraint(Sketcher.Constraint("Parallel", 19, 22))
sketch2.addConstraint(Sketcher.Constraint("Horizontal", 9, 2, 12, 2))
sketch2.addConstraint(Sketcher.Constraint("Horizontal", 0, 2, 21, 2))
sketch2.addConstraint(Sketcher.Constraint("Equal", 0, 4))
sketch2.addConstraint(Sketcher.Constraint("Diameter", 24, Q("40 mm")))
sketch2.addConstraint(Sketcher.Constraint("Radius", 1, Q("25 mm")))
sketch2.addConstraint(Sketcher.Constraint("Angle", 0, Q("-120 deg")))
sketch2.addConstraint(Sketcher.Constraint("DistanceY", 6, 2, 3, 2, Q("25 mm")))
sketch2.addConstraint(Sketcher.Constraint("DistanceY", 10, 2, 8, 2, Q("12.5 mm")))
sketch2.addConstraint(Sketcher.Constraint("DistanceX", 4, 2, -1, 1, Q("23.7758 mm")))
sketch2.addConstraint(Sketcher.Constraint("DistanceX", 2, 2, 2, 1, Q("5.511026 mm")))
pad2 = body.newObject("PartDesign::Pad", "Pad001")
pad2.Profile = sketch2
pad2.Length = 45

doc.recompute()
